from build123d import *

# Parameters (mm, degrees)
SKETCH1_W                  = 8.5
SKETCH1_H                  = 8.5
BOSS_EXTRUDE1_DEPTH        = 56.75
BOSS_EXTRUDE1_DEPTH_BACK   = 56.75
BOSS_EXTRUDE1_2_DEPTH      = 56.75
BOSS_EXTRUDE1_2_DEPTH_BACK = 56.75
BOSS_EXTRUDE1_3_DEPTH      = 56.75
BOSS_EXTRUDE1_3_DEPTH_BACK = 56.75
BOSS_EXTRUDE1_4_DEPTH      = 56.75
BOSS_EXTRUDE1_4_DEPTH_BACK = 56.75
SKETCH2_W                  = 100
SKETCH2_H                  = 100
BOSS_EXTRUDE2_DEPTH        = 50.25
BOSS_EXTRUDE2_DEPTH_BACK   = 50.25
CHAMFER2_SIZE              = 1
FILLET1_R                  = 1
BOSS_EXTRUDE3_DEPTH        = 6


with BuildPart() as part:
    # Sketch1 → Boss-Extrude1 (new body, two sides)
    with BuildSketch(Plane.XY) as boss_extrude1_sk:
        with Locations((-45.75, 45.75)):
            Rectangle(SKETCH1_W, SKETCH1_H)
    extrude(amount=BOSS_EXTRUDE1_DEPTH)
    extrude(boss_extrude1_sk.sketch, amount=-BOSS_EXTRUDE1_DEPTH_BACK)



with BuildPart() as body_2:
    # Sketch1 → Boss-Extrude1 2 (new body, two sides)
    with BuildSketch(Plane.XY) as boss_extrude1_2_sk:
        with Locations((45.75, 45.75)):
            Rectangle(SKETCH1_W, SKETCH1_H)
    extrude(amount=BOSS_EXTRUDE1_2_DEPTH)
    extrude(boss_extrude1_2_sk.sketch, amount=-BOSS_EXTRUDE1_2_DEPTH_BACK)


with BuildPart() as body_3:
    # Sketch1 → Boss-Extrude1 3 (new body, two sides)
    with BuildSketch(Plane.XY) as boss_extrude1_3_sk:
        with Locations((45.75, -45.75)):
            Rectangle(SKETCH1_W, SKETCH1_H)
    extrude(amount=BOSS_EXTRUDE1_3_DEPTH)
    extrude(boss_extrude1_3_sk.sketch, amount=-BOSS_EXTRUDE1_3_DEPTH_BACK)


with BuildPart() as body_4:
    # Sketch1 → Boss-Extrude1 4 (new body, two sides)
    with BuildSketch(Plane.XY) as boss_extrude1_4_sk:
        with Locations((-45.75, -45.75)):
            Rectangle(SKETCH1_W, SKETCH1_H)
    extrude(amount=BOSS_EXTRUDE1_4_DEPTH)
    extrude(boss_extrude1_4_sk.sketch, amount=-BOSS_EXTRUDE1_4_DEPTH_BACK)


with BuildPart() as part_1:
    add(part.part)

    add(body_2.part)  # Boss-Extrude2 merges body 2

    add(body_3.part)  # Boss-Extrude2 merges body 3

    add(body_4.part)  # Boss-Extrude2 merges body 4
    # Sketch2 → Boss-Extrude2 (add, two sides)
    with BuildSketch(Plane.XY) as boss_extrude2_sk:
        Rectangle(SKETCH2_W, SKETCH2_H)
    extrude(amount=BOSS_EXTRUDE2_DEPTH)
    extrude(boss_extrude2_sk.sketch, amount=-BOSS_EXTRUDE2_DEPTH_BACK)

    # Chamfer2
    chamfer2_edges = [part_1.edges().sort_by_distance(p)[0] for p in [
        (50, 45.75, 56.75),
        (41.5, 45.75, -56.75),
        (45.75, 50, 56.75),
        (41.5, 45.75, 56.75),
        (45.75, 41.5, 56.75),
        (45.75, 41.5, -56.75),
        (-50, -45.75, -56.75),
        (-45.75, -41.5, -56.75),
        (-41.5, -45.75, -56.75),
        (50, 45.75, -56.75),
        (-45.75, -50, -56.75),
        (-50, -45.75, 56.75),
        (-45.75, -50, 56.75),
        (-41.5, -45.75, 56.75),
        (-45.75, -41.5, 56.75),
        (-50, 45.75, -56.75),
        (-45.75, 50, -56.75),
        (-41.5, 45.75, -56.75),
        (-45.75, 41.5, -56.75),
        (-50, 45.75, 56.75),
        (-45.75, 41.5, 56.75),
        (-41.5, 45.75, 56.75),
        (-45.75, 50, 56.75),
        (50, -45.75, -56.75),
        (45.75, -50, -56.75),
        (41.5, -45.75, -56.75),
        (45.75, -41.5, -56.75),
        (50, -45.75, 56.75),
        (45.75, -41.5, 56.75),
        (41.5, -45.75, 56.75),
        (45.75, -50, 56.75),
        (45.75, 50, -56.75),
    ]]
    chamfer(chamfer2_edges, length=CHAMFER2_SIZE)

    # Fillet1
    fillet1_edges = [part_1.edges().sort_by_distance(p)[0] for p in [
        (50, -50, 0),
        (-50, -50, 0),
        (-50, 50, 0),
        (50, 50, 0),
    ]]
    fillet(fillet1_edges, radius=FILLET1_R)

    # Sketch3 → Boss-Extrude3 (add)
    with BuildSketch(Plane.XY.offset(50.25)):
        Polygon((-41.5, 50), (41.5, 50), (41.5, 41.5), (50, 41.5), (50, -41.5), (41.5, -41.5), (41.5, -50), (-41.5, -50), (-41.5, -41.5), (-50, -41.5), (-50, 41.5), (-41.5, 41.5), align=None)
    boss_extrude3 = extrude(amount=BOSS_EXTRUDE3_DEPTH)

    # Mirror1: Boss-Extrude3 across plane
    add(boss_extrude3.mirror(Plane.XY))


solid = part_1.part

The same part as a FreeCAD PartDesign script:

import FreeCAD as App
import Part
import Sketcher

V = App.Vector
Q = App.Units.Quantity


def edges_at(feature, points):
    """Names of the edges that pass closest to the given points."""
    edges = feature.Shape.Edges
    near = lambda p: min(range(len(edges)), key=lambda i: edges[i].distToShape(Part.Vertex(*p))[0])
    return sorted({f"Edge{near(p) + 1}" for p in points})


def add_polygon(sketch, points):
    """Adds a closed chain of lines whose ends are joined by coincident constraints."""
    first, n = sketch.GeometryCount, len(points)
    for a, b in zip(points, points[1:] + points[:1]):
        sketch.addGeometry(Part.LineSegment(App.Vector(*a, 0), App.Vector(*b, 0)), False)
    for i in range(n):
        sketch.addConstraint(Sketcher.Constraint("Coincident", first + i, 2, first + (i + 1) % n, 1))

doc = App.newDocument("Part")
body = doc.addObject("PartDesign::Body", "Body")

# Sketch on XY plane
sketch1 = body.newObject("Sketcher::SketchObject", "Sketch")
sketch1.AttachmentSupport = (doc.getObject("XY_Plane"), [""])
sketch1.MapMode = "FlatFace"
add_polygon(sketch1, [(-50, 50), (-50, 42), (-42, 42), (-42, 50)])  # lines 0-3
sketch1.addConstraint([
    Sketcher.Constraint("Vertical", 0),
    Sketcher.Constraint("Horizontal", 1),
    Sketcher.Constraint("Vertical", 2),
    Sketcher.Constraint("Horizontal", 3),
    Sketcher.Constraint("Equal", 3, 0),
    Sketcher.Constraint("DistanceX", 1, 1, 1, 2, Q("8.5 mm")),
    Sketcher.Constraint("DistanceX", 0, 2, -1, 1, Q("50 mm")),
    Sketcher.Constraint("DistanceY", -1, 1, 2, 2, Q("50 mm")),
])
pad1 = body.newObject("PartDesign::Pad", "Pad")
pad1.Profile = sketch1
pad1.Type = "TwoLengths"
pad1.Length = 56.75
pad1.Length2 = 56.75
body2 = doc.addObject("PartDesign::Body", "Body001")

# Sketch on XY plane
sketch2 = body2.newObject("Sketcher::SketchObject", "Sketch001")
sketch2.AttachmentSupport = (doc.getObject("XY_Plane001"), [""])
sketch2.MapMode = "FlatFace"
add_polygon(sketch2, [(42, 50), (42, 42), (50, 42), (50, 50)])  # lines 0-3
sketch2.addConstraint([
    Sketcher.Constraint("Vertical", 0),
    Sketcher.Constraint("Horizontal", 1),
    Sketcher.Constraint("Vertical", 2),
    Sketcher.Constraint("Horizontal", 3),
    Sketcher.Constraint("Equal", 3, 0),
    Sketcher.Constraint("DistanceX", 1, 1, 1, 2, Q("8.5 mm")),
    Sketcher.Constraint("DistanceX", -1, 1, 1, 2, Q("50 mm")),
    Sketcher.Constraint("DistanceY", -1, 1, 2, 2, Q("50 mm")),
])
pad2 = body2.newObject("PartDesign::Pad", "Pad001")
pad2.Profile = sketch2
pad2.Type = "TwoLengths"
pad2.Length = 56.75
pad2.Length2 = 56.75
body3 = doc.addObject("PartDesign::Body", "Body002")

# Sketch on XY plane
sketch3 = body3.newObject("Sketcher::SketchObject", "Sketch002")
sketch3.AttachmentSupport = (doc.getObject("XY_Plane002"), [""])
sketch3.MapMode = "FlatFace"
add_polygon(sketch3, [(42, -42), (42, -50), (50, -50), (50, -42)])  # lines 0-3
sketch3.addConstraint([
    Sketcher.Constraint("Vertical", 0),
    Sketcher.Constraint("Horizontal", 1),
    Sketcher.Constraint("Vertical", 2),
    Sketcher.Constraint("Horizontal", 3),
    Sketcher.Constraint("Equal", 3, 0),
    Sketcher.Constraint("DistanceX", 1, 1, 1, 2, Q("8.5 mm")),
    Sketcher.Constraint("DistanceY", 0, 2, -1, 1, Q("50 mm")),
    Sketcher.Constraint("DistanceX", -1, 1, 1, 2, Q("50 mm")),
])
pad3 = body3.newObject("PartDesign::Pad", "Pad002")
pad3.Profile = sketch3
pad3.Type = "TwoLengths"
pad3.Length = 56.75
pad3.Length2 = 56.75
body4 = doc.addObject("PartDesign::Body", "Body003")

# Sketch on XY plane
sketch4 = body4.newObject("Sketcher::SketchObject", "Sketch003")
sketch4.AttachmentSupport = (doc.getObject("XY_Plane003"), [""])
sketch4.MapMode = "FlatFace"
add_polygon(sketch4, [(-50, -42), (-50, -50), (-42, -50), (-42, -42)])  # lines 0-3
sketch4.addConstraint([
    Sketcher.Constraint("Vertical", 0),
    Sketcher.Constraint("Horizontal", 1),
    Sketcher.Constraint("Vertical", 2),
    Sketcher.Constraint("Horizontal", 3),
    Sketcher.Constraint("Equal", 3, 0),
    Sketcher.Constraint("DistanceX", 1, 1, 1, 2, Q("8.5 mm")),
    Sketcher.Constraint("DistanceX", 0, 2, -1, 1, Q("50 mm")),
    Sketcher.Constraint("DistanceY", 0, 2, -1, 1, Q("50 mm")),
])
pad4 = body4.newObject("PartDesign::Pad", "Pad003")
pad4.Profile = sketch4
pad4.Type = "TwoLengths"
pad4.Length = 56.75
pad4.Length2 = 56.75
body.AllowCompound = True
doc.recompute()

boolean = body.newObject("PartDesign::Boolean", "Boolean")
boolean.Type = "Fuse"
boolean.addObjects([body2])
doc.recompute()

boolean2 = body.newObject("PartDesign::Boolean", "Boolean001")
boolean2.Type = "Fuse"
boolean2.addObjects([body3])
doc.recompute()

boolean3 = body.newObject("PartDesign::Boolean", "Boolean002")
boolean3.Type = "Fuse"
boolean3.addObjects([body4])

# Sketch on XY plane
sketch5 = body.newObject("Sketcher::SketchObject", "Sketch004")
sketch5.AttachmentSupport = (doc.getObject("XY_Plane"), [""])
sketch5.MapMode = "FlatFace"
add_polygon(sketch5, [(-50, 50), (-50, -50), (50, -50), (50, 50)])  # lines 0-3
sketch5.addConstraint([
    Sketcher.Constraint("Vertical", 0),
    Sketcher.Constraint("Horizontal", 1),
    Sketcher.Constraint("Vertical", 2),
    Sketcher.Constraint("Horizontal", 3),
    Sketcher.Constraint("Symmetric", 0, 2, 2, 2, -1, 1),
    Sketcher.Constraint("Equal", 3, 0),
    Sketcher.Constraint("DistanceX", 1, 1, 1, 2, Q("100 mm")),
])
pad5 = body.newObject("PartDesign::Pad", "Pad004")
pad5.Profile = sketch5
pad5.Type = "TwoLengths"
pad5.Length = 50.25
pad5.Length2 = 50.25
doc.recompute()

chamfer = body.newObject("PartDesign::Chamfer", "Chamfer")
chamfer.Base = (pad5, edges_at(pad5, [
    (50, 45.75, 56.75),
    (41.5, 45.75, -56.75),
    (45.75, 50, 56.75),
    (41.5, 45.75, 56.75),
    (45.75, 41.5, 56.75),
    (45.75, 41.5, -56.75),
    (-50, -45.75, -56.75),
    (-45.75, -41.5, -56.75),
    (-41.5, -45.75, -56.75),
    (50, 45.75, -56.75),
    (-45.75, -50, -56.75),
    (-50, -45.75, 56.75),
    (-45.75, -50, 56.75),
    (-41.5, -45.75, 56.75),
    (-45.75, -41.5, 56.75),
    (-50, 45.75, -56.75),
    (-45.75, 50, -56.75),
    (-41.5, 45.75, -56.75),
    (-45.75, 41.5, -56.75),
    (-50, 45.75, 56.75),
    (-45.75, 41.5, 56.75),
    (-41.5, 45.75, 56.75),
    (-45.75, 50, 56.75),
    (50, -45.75, -56.75),
    (45.75, -50, -56.75),
    (41.5, -45.75, -56.75),
    (45.75, -41.5, -56.75),
    (50, -45.75, 56.75),
    (45.75, -41.5, 56.75),
    (41.5, -45.75, 56.75),
    (45.75, -50, 56.75),
    (45.75, 50, -56.75),
]))
chamfer.Size = 1
doc.recompute()

fillet = body.newObject("PartDesign::Fillet", "Fillet")
fillet.Base = (chamfer, edges_at(chamfer, [
    (50, -50, 0),
    (-50, -50, 0),
    (-50, 50, 0),
    (50, 50, 0),
]))
fillet.Radius = 1

# Sketch on XY plane
sketch6 = body.newObject("Sketcher::SketchObject", "Sketch005")
sketch6.AttachmentSupport = (doc.getObject("XY_Plane"), [""])
sketch6.MapMode = "FlatFace"
sketch6.AttachmentOffset = App.Placement(V(0, 0, 50.25), App.Rotation())
add_polygon(sketch6, [(42, 50), (-42, 50), (-42, 42), (-50, 42), (-50, -42), (-42, -42), (-42, -50), (42, -50), (42, -42), (50, -42), (50, 42), (42, 42)])  # lines 0-11
sketch6.addConstraint([
    Sketcher.Constraint("Horizontal", 0),
    Sketcher.Constraint("Vertical", 1),
    Sketcher.Constraint("Horizontal", 2),
    Sketcher.Constraint("Vertical", 3),
    Sketcher.Constraint("Horizontal", 4),
    Sketcher.Constraint("Vertical", 5),
    Sketcher.Constraint("Horizontal", 6),
    Sketcher.Constraint("Vertical", 7),
    Sketcher.Constraint("Horizontal", 8),
    Sketcher.Constraint("Vertical", 9),
    Sketcher.Constraint("Horizontal", 10),
    Sketcher.Constraint("Vertical", 11),
    Sketcher.Constraint("Symmetric", 0, 2, 6, 2, -1, 1),
    Sketcher.Constraint("Symmetric", 2, 2, 8, 2, -1, 1),
    Sketcher.Constraint("Symmetric", 4, 2, 10, 2, -1, 1),
    Sketcher.Constraint("Symmetric", 4, 2, 7, 2, -2),
    Sketcher.Constraint("Equal", 10, 1),
    Sketcher.Constraint("Equal", 6, 3),
    Sketcher.Constraint("DistanceX", 0, 2, 0, 1, Q("83 mm")),
    Sketcher.Constraint("DistanceX", 2, 2, 2, 1, Q("8.5 mm")),
])
pad6 = body.newObject("PartDesign::Pad", "Pad005")
pad6.Profile = sketch6
pad6.Length = 6
doc.recompute()

mirrored = body.newObject("PartDesign::Mirrored", "Mirrored")
mirrored.Originals = [pad6]
mirrored.MirrorPlane = (doc.getObject("XY_Plane"), [""])
body.Tip = mirrored

doc.recompute()
